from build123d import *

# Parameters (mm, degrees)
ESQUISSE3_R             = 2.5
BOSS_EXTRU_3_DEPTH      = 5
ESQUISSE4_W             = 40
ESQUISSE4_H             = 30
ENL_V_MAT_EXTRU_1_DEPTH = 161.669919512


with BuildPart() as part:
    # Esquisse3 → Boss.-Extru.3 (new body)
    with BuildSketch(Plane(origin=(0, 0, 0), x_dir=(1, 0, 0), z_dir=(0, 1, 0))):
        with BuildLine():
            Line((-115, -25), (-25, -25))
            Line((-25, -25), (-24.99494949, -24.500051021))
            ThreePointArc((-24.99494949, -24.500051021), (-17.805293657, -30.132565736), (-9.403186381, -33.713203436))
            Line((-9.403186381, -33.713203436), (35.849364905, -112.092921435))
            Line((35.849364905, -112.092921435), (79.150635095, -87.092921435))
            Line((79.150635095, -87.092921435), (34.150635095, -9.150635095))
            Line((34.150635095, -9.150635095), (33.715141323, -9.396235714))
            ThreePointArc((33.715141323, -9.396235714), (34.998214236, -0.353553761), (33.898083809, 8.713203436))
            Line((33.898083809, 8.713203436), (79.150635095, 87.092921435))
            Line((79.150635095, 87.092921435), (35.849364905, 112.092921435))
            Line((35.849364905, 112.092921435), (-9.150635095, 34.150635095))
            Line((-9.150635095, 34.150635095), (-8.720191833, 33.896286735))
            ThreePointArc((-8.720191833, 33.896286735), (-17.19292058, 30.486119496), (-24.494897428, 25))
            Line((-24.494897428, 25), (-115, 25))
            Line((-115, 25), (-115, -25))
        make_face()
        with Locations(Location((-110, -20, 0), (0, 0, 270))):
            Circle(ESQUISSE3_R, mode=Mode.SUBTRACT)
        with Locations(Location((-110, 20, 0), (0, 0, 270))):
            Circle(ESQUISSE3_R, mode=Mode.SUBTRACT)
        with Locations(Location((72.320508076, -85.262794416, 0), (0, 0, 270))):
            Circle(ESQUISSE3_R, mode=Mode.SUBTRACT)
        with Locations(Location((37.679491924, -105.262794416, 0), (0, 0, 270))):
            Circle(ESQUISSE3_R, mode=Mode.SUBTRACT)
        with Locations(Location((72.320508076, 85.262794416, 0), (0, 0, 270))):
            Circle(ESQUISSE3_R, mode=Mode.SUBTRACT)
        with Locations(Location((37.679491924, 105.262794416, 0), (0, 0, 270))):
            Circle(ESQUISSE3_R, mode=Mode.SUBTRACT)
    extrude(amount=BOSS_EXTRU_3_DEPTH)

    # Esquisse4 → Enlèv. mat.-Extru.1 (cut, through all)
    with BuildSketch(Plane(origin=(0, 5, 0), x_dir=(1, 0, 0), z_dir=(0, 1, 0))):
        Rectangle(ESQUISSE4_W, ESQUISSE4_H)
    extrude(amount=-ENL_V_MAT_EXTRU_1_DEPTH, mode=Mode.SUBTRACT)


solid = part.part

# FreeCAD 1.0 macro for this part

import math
import FreeCAD as App
import Part
import Sketcher
from FreeCAD import Vector
Q = App.Units.Quantity

doc = App.newDocument("Part")
body = doc.addObject("PartDesign::Body", "Body")

# Sketch on XZ plane
sketch1 = body.newObject("Sketcher::SketchObject", "Sketch")
sketch1.AttachmentSupport = (doc.getObject("XZ_Plane"), [""])
sketch1.MapMode = "FlatFace"
sketch1.addGeometry(Part.LineSegment(Vector(-115, 25, 0), Vector(-25, 25, 0)), False)
sketch1.addGeometry(Part.LineSegment(Vector(-25, 25, 0), Vector(-24.99, 24.5, 0)), False)
sketch1.addGeometry(Part.ArcOfCircle(Part.Circle(Vector(0, 0, 0), Vector(0, 0, 1), 35), math.radians(106), math.radians(136)), False)
sketch1.addGeometry(Part.LineSegment(Vector(-9.4, 33.71, 0), Vector(35.85, 112.09, 0)), False)
sketch1.addGeometry(Part.LineSegment(Vector(35.85, 112.09, 0), Vector(79.15, 87.09, 0)), False)
sketch1.addGeometry(Part.LineSegment(Vector(79.15, 87.09, 0), Vector(34.15, 9.15, 0)), False)
sketch1.addGeometry(Part.LineSegment(Vector(34.15, 9.15, 0), Vector(33.72, 9.4, 0)), False)
sketch1.addGeometry(Part.ArcOfCircle(Part.Circle(Vector(0, 0, 0), Vector(0, 0, 1), 35), math.radians(-14), math.radians(16)), False)
sketch1.addGeometry(Part.LineSegment(Vector(33.9, -8.71, 0), Vector(79.15, -87.09, 0)), False)
sketch1.addGeometry(Part.LineSegment(Vector(79.15, -87.09, 0), Vector(35.85, -112.09, 0)), False)
sketch1.addGeometry(Part.LineSegment(Vector(35.85, -112.09, 0), Vector(-9.15, -34.15, 0)), False)
sketch1.addGeometry(Part.LineSegment(Vector(-9.15, -34.15, 0), Vector(-8.72, -33.9, 0)), False)
sketch1.addGeometry(Part.ArcOfCircle(Part.Circle(Vector(0, 0, 0), Vector(0, 0, 1), 35), math.radians(-134), math.radians(-104)), False)
sketch1.addGeometry(Part.LineSegment(Vector(-24.49, -25, 0), Vector(-115, -25, 0)), False)
sketch1.addGeometry(Part.LineSegment(Vector(-115, -25, 0), Vector(-115, 25, 0)), False)
sketch1.addGeometry(Part.Circle(Vector(-110, 20, 0), Vector(0, 0, 1), 2.5), False)
sketch1.addGeometry(Part.Circle(Vector(37.68, 105.26, 0), Vector(0, 0, 1), 2.5), False)
sketch1.addGeometry(Part.Circle(Vector(72.32, 85.26, 0), Vector(0, 0, 1), 2.5), False)
sketch1.addGeometry(Part.Circle(Vector(-110, -20, 0), Vector(0, 0, 1), 2.5), False)
sketch1.addGeometry(Part.Circle(Vector(37.68, -105.26, 0), Vector(0, 0, 1), 2.5), False)
sketch1.addGeometry(Part.Circle(Vector(72.32, -85.26, 0), Vector(0, 0, 1), 2.5), False)
sketch1.addConstraint(Sketcher.Constraint("Coincident", 0, 2, 1, 1))
sketch1.addConstraint(Sketcher.Constraint("Coincident", 1, 2, 2, 2))
sketch1.addConstraint(Sketcher.Constraint("Coincident", 2, 1, 3, 1))
sketch1.addConstraint(Sketcher.Constraint("Coincident", 3, 2, 4, 1))
sketch1.addConstraint(Sketcher.Constraint("Coincident", 4, 2, 5, 1))
sketch1.addConstraint(Sketcher.Constraint("Coincident", 5, 2, 6, 1))
sketch1.addConstraint(Sketcher.Constraint("Coincident", 6, 2, 7, 2))
sketch1.addConstraint(Sketcher.Constraint("Coincident", 7, 1, 8, 1))
sketch1.addConstraint(Sketcher.Constraint("Coincident", 8, 2, 9, 1))
sketch1.addConstraint(Sketcher.Constraint("Coincident", 9, 2, 10, 1))
sketch1.addConstraint(Sketcher.Constraint("Coincident", 10, 2, 11, 1))
sketch1.addConstraint(Sketcher.Constraint("Coincident", 11, 2, 12, 2))
sketch1.addConstraint(Sketcher.Constraint("Coincident", 12, 1, 13, 1))
sketch1.addConstraint(Sketcher.Constraint("Coincident", 13, 2, 14, 1))
sketch1.addConstraint(Sketcher.Constraint("Coincident", 14, 2, 0, 1))
sketch1.addConstraint(Sketcher.Constraint("Horizontal", 0))
sketch1.addConstraint(Sketcher.Constraint("Horizontal", 13))
sketch1.addConstraint(Sketcher.Constraint("Vertical", 14))
sketch1.addConstraint(Sketcher.Constraint("Coincident", 2, 3, -1, 1))
sketch1.addConstraint(Sketcher.Constraint("Coincident", 7, 3, -1, 1))
sketch1.addConstraint(Sketcher.Constraint("Coincident", 12, 3, -1, 1))
sketch1.addConstraint(Sketcher.Constraint("Equal", 2, 7))
sketch1.addConstraint(Sketcher.Constraint("Equal", 7, 12))
sketch1.addConstraint(Sketcher.Constraint("Equal", 15, 16))
sketch1.addConstraint(Sketcher.Constraint("Equal", 16, 17))
sketch1.addConstraint(Sketcher.Constraint("Equal", 17, 18))
sketch1.addConstraint(Sketcher.Constraint("Equal", 18, 19))
sketch1.addConstraint(Sketcher.Constraint("Equal", 19, 20))
sketch1.addConstraint(Sketcher.Constraint("Symmetric", 15, 3, 18, 3, -1))
sketch1.addConstraint(Sketcher.Constraint("Symmetric", 16, 3, 19, 3, -1))
sketch1.addConstraint(Sketcher.Constraint("Symmetric", 17, 3, 20, 3, -1))
sketch1.addConstraint(Sketcher.Constraint("Symmetric", 4, 2, 8, 2, -1))
sketch1.addConstraint(Sketcher.Constraint("Symmetric", 3, 2, 9, 2, -1))
sketch1.addConstraint(Sketcher.Constraint("Perpendicular", 3, 4))
sketch1.addConstraint(Sketcher.Constraint("Perpendicular", 4, 5))
sketch1.addConstraint(Sketcher.Constraint("Perpendicular", 8, 9))
sketch1.addConstraint(Sketcher.Constraint("Perpendicular", 9, 10))
sketch1.addConstraint(Sketcher.Constraint("Equal", 1, 6))
sketch1.addConstraint(Sketcher.Constraint("Equal", 3, 8))
sketch1.addConstraint(Sketcher.Constraint("Equal", 5, 10))
sketch1.addConstraint(Sketcher.Constraint("Equal", 6, 11))
sketch1.addConstraint(Sketcher.Constraint("Diameter", 15, Q("5 mm")))
sketch1.addConstraint(Sketcher.Constraint("Radius", 2, Q("35 mm")))
sketch1.addConstraint(Sketcher.Constraint("DistanceX", 0, 1, 0, 2, Q("90 mm")))
sketch1.addConstraint(Sketcher.Constraint("DistanceY", 14, 1, 14, 2, Q("50 mm")))
sketch1.addConstraint(Sketcher.Constraint("Angle", 3, Q("60 deg")))
sketch1.addConstraint(Sketcher.Constraint("Distance", 4, Q("50 mm")))
sketch1.addConstraint(Sketcher.Constraint("Distance", 5, Q("90 mm")))
sketch1.addConstraint(Sketcher.Constraint("DistanceX", 15, 3, -1, 1, Q("110 mm")))
sketch1.addConstraint(Sketcher.Constraint("DistanceY", -1, 1, 15, 3, Q("20 mm")))
sketch1.addConstraint(Sketcher.Constraint("DistanceX", 0, 2, -1, 1, Q("25 mm")))
sketch1.addConstraint(Sketcher.Constraint("DistanceY", -1, 1, 0, 2, Q("25 mm")))
sketch1.addConstraint(Sketcher.Constraint("DistanceY", 17, 3, 16, 3, Q("20 mm")))
sketch1.addConstraint(Sketcher.Constraint("DistanceY", 5, 2, 6, 2, Q("0.245601 mm")))
sketch1.addConstraint(Sketcher.Constraint("DistanceX", -1, 1, 16, 3, Q("37.679492 mm")))
sketch1.addConstraint(Sketcher.Constraint("DistanceX", -1, 1, 17, 3, Q("72.320508 mm")))
sketch1.addConstraint(Sketcher.Constraint("DistanceX", 1, 2, -1, 1, Q("24.994949 mm")))
sketch1.addConstraint(Sketcher.Constraint("DistanceY", 19, 3, 17, 3, Q("190.525589 mm")))
pad1 = body.newObject("PartDesign::Pad", "Pad")
pad1.Profile = sketch1
pad1.Length = 5
pad1.Reversed = True

# Sketch on XZ plane
sketch2 = body.newObject("Sketcher::SketchObject", "Sketch001")
sketch2.AttachmentSupport = (doc.getObject("XZ_Plane"), [""])
sketch2.MapMode = "FlatFace"
sketch2.AttachmentOffset = App.Placement(Vector(0, 0, -5), App.Rotation())
sketch2.addGeometry(Part.LineSegment(Vector(-20, -15, 0), Vector(-20, 15, 0)), False)
sketch2.addGeometry(Part.LineSegment(Vector(-20, 15, 0), Vector(20, 15, 0)), False)
sketch2.addGeometry(Part.LineSegment(Vector(20, 15, 0), Vector(20, -15, 0)), False)
sketch2.addGeometry(Part.LineSegment(Vector(20, -15, 0), Vector(-20, -15, 0)), False)
sketch2.addConstraint(Sketcher.Constraint("Coincident", 0, 2, 1, 1))
sketch2.addConstraint(Sketcher.Constraint("Coincident", 1, 2, 2, 1))
sketch2.addConstraint(Sketcher.Constraint("Coincident", 2, 2, 3, 1))
sketch2.addConstraint(Sketcher.Constraint("Coincident", 3, 2, 0, 1))
sketch2.addConstraint(Sketcher.Constraint("Vertical", 0))
sketch2.addConstraint(Sketcher.Constraint("Horizontal", 1))
sketch2.addConstraint(Sketcher.Constraint("Vertical", 2))
sketch2.addConstraint(Sketcher.Constraint("Horizontal", 3))
sketch2.addConstraint(Sketcher.Constraint("Symmetric", 0, 2, 2, 2, -1, 1))
sketch2.addConstraint(Sketcher.Constraint("DistanceX", 1, 1, 1, 2, Q("40 mm")))
sketch2.addConstraint(Sketcher.Constraint("DistanceY", 0, 1, 0, 2, Q("30 mm")))
pocket1 = body.newObject("PartDesign::Pocket", "Pocket")
pocket1.Profile = sketch2
pocket1.Type = "ThroughAll"
pocket1.Reversed = True

doc.recompute()
